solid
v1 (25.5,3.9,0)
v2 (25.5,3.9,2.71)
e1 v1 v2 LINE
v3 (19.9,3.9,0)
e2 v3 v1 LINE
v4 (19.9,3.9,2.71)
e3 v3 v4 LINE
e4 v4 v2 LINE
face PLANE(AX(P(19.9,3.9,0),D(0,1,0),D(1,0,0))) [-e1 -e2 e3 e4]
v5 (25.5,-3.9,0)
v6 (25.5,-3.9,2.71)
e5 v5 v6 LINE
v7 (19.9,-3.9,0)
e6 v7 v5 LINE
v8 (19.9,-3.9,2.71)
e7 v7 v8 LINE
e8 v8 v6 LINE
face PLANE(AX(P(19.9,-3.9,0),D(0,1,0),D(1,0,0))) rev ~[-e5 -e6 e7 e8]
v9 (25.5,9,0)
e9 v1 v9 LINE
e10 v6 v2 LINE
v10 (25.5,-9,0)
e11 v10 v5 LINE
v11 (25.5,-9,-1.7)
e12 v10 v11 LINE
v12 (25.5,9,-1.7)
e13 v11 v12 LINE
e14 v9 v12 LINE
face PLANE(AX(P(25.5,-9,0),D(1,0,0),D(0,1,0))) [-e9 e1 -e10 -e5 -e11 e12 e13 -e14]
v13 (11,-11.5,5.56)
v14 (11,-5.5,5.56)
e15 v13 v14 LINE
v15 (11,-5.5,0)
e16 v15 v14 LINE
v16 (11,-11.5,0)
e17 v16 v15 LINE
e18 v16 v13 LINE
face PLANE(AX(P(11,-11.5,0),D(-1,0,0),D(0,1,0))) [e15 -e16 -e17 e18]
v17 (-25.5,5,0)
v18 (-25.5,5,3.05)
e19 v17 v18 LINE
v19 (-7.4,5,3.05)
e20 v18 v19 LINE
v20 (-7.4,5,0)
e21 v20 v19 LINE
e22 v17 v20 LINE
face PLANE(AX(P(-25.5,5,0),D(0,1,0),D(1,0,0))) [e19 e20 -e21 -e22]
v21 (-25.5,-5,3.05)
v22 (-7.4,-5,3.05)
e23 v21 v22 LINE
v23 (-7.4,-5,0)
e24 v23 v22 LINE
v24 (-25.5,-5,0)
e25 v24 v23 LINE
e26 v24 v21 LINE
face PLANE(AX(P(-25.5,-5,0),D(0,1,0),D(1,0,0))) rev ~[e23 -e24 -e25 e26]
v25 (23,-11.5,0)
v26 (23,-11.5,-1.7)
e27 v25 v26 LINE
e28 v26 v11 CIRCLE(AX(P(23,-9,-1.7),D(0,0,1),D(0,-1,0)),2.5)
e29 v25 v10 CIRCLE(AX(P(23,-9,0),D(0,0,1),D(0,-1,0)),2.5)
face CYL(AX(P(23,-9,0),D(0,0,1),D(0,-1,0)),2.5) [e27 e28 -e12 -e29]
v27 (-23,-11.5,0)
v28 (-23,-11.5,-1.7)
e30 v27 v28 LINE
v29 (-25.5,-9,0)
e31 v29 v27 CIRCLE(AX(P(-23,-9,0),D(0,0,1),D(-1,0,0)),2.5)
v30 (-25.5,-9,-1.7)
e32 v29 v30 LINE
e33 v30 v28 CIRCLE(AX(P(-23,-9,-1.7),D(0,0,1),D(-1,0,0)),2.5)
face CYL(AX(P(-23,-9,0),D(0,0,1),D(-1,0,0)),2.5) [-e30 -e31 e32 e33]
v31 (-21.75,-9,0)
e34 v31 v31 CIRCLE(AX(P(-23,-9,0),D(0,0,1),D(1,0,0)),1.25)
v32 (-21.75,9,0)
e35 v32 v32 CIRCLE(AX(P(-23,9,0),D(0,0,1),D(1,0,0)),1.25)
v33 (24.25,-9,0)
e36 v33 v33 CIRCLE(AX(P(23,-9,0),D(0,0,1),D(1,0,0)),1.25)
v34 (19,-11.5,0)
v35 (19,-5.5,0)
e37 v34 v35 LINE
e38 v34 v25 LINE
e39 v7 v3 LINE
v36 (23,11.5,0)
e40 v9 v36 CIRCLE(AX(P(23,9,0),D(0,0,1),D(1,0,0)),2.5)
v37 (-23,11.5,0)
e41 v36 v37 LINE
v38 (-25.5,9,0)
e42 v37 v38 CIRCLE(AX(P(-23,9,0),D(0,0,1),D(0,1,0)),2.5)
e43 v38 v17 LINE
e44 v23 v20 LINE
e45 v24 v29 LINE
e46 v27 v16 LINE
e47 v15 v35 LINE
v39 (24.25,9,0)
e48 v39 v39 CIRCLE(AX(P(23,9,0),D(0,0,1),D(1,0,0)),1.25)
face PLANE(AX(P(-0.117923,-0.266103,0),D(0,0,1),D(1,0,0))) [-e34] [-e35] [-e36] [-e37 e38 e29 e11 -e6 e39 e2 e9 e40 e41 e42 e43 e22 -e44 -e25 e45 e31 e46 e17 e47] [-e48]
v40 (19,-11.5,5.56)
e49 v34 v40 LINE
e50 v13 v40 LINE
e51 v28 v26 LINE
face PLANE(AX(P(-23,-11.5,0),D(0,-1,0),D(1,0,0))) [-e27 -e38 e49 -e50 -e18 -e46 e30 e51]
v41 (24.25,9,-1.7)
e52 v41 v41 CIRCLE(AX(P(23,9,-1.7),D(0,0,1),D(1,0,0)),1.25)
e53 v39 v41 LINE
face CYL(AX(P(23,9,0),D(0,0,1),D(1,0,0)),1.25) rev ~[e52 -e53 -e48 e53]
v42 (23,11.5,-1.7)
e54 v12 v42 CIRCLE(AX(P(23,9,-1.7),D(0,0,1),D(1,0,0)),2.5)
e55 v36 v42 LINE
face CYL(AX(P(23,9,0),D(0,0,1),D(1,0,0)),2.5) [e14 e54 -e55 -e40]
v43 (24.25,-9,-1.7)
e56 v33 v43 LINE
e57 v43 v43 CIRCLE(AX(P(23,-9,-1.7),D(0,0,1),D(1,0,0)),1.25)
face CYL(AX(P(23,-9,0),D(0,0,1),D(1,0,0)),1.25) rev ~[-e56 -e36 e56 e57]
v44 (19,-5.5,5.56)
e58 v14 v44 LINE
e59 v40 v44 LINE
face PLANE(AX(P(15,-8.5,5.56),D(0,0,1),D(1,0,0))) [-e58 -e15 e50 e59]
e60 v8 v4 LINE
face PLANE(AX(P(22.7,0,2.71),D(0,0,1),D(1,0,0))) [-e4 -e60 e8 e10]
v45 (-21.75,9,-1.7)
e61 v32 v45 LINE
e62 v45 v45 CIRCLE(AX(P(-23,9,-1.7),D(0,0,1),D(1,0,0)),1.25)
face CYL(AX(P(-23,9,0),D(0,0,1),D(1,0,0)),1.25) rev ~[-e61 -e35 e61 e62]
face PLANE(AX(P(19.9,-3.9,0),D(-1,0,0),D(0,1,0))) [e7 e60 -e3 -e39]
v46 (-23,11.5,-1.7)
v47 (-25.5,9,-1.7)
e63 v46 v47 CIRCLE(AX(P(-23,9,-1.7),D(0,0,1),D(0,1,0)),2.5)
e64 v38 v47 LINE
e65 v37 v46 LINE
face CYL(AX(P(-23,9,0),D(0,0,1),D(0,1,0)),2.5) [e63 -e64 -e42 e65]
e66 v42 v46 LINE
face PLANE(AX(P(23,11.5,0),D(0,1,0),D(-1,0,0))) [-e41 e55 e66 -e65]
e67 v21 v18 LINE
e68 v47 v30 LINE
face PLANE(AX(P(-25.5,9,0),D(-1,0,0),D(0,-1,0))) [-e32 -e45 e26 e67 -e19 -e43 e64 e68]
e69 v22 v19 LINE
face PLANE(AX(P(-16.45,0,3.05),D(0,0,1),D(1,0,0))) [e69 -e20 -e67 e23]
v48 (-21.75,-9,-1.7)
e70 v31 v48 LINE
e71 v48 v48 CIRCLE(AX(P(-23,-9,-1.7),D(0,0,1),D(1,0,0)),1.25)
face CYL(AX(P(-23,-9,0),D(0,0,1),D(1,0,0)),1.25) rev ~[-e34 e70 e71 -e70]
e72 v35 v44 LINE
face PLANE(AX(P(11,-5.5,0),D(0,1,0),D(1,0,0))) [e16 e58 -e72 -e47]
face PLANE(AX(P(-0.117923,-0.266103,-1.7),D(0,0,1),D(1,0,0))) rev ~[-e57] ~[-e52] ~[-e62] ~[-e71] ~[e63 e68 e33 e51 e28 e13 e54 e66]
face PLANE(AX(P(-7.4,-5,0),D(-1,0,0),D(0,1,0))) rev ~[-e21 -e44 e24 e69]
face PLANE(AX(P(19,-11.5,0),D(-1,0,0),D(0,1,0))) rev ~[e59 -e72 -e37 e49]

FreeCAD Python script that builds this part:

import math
import FreeCAD as App
import Part
import Sketcher
from FreeCAD import Vector
Q = App.Units.Quantity


def add_polygon(sketch, points):
    """Adds a closed chain of lines whose ends are joined by coincident constraints."""
    first, n = sketch.GeometryCount, len(points)
    for a, b in zip(points, points[1:] + points[:1]):
        sketch.addGeometry(Part.LineSegment(App.Vector(*a, 0), App.Vector(*b, 0)), False)
    for i in range(n):
        sketch.addConstraint(Sketcher.Constraint("Coincident", first + i, 2, first + (i + 1) % n, 1))

doc = App.newDocument("Part")
body = doc.addObject("PartDesign::Body", "Body")

# Sketch on XY plane
sketch1 = doc.addObject("Sketcher::SketchObject", "Sketch")
body.addObject(sketch1)
sketch1.AttachmentSupport = (doc.XY_Plane, [""])
sketch1.MapMode = "FlatFace"
sketch1.addGeometry([
    Part.LineSegment(Vector(23, 11.5, 0), Vector(-23, 11.5, 0)),  # 0
    Part.ArcOfCircle(Part.Circle(Vector(-23, 9, 0), Vector(0, 0, 1), 2.5), math.radians(90), math.radians(180)),  # 1
    Part.LineSegment(Vector(-25.5, 9, 0), Vector(-25.5, -9, 0)),  # 2
    Part.ArcOfCircle(Part.Circle(Vector(-23, -9, 0), Vector(0, 0, 1), 2.5), math.radians(180), math.radians(270)),  # 3
    Part.LineSegment(Vector(-23, -11.5, 0), Vector(23, -11.5, 0)),  # 4
    Part.ArcOfCircle(Part.Circle(Vector(23, -9, 0), Vector(0, 0, 1), 2.5), math.radians(-90), math.radians(0)),  # 5
    Part.LineSegment(Vector(25.5, -9, 0), Vector(25.5, 9, 0)),  # 6
    Part.ArcOfCircle(Part.Circle(Vector(23, 9, 0), Vector(0, 0, 1), 2.5), math.radians(0), math.radians(90)),  # 7
    Part.Circle(Vector(-23, -9, 0), Vector(0, 0, 1), 1.2),  # 8
    Part.Circle(Vector(23, -9, 0), Vector(0, 0, 1), 1.2),  # 9
    Part.Circle(Vector(-23, 9, 0), Vector(0, 0, 1), 1.2),  # 10
    Part.Circle(Vector(23, 9, 0), Vector(0, 0, 1), 1.2),  # 11
], False)
sketch1.addConstraint([
    Sketcher.Constraint("Tangent", 0, 2, 1, 1),
    Sketcher.Constraint("Tangent", 1, 2, 2, 1),
    Sketcher.Constraint("Tangent", 2, 2, 3, 1),
    Sketcher.Constraint("Tangent", 3, 2, 4, 1),
    Sketcher.Constraint("Tangent", 4, 2, 5, 1),
    Sketcher.Constraint("Tangent", 5, 2, 6, 1),
    Sketcher.Constraint("Tangent", 6, 2, 7, 1),
    Sketcher.Constraint("Tangent", 7, 2, 0, 1),
    Sketcher.Constraint("Horizontal", 0),
    Sketcher.Constraint("Vertical", 2),
    Sketcher.Constraint("Horizontal", 4),
    Sketcher.Constraint("Vertical", 6),
    Sketcher.Constraint("Coincident", 8, 3, 3, 3),
    Sketcher.Constraint("Coincident", 9, 3, 5, 3),
    Sketcher.Constraint("Coincident", 10, 3, 1, 3),
    Sketcher.Constraint("Coincident", 11, 3, 7, 3),
    Sketcher.Constraint("Equal", 1, 3),
    Sketcher.Constraint("Equal", 3, 5),
    Sketcher.Constraint("Equal", 5, 7),
    Sketcher.Constraint("Equal", 8, 9),
    Sketcher.Constraint("Equal", 9, 10),
    Sketcher.Constraint("Equal", 10, 11),
    Sketcher.Constraint("Symmetric", 1, 3, 5, 3, -1, 1),
    Sketcher.Constraint("Diameter", 8, Q("2.5 mm")),
    Sketcher.Constraint("Radius", 1, Q("2.5 mm")),
    Sketcher.Constraint("DistanceX", 0, 2, 0, 1, Q("46 mm")),
    Sketcher.Constraint("DistanceY", 2, 2, 2, 1, Q("18 mm")),
])
pad1 = doc.addObject("PartDesign::Pad", "Pad")
body.addObject(pad1)
pad1.Profile = sketch1
pad1.Length = 1.7
pad1.Reversed = True

# Sketch on XY plane
sketch2 = doc.addObject("Sketcher::SketchObject", "Sketch001")
body.addObject(sketch2)
sketch2.AttachmentSupport = (doc.XY_Plane, [""])
sketch2.MapMode = "FlatFace"
add_polygon(sketch2, [(11, -6), (11, -12), (19, -12), (19, -6)])  # lines 0-3
sketch2.addConstraint([
    Sketcher.Constraint("Vertical", 0),
    Sketcher.Constraint("Horizontal", 1),
    Sketcher.Constraint("Vertical", 2),
    Sketcher.Constraint("Horizontal", 3),
    Sketcher.Constraint("DistanceX", 1, 1, 1, 2, Q("8 mm")),
    Sketcher.Constraint("DistanceY", 0, 2, 0, 1, Q("6 mm")),
    Sketcher.Constraint("DistanceX", -1, 1, 0, 2, Q("11 mm")),
    Sketcher.Constraint("DistanceY", 0, 2, -1, 1, Q("11.5 mm")),
])
pad2 = doc.addObject("PartDesign::Pad", "Pad001")
body.addObject(pad2)
pad2.Profile = sketch2
pad2.Length = 5.56

# Sketch on XY plane
sketch3 = doc.addObject("Sketcher::SketchObject", "Sketch002")
body.addObject(sketch3)
sketch3.AttachmentSupport = (doc.XY_Plane, [""])
sketch3.MapMode = "FlatFace"
add_polygon(sketch3, [(-26, 5), (-26, -5), (-7, -5), (-7, 5)])  # lines 0-3
sketch3.addConstraint([
    Sketcher.Constraint("Vertical", 0),
    Sketcher.Constraint("Horizontal", 1),
    Sketcher.Constraint("Vertical", 2),
    Sketcher.Constraint("Horizontal", 3),
    Sketcher.Constraint("DistanceY", 0, 2, 0, 1, Q("10 mm")),
    Sketcher.Constraint("DistanceX", 1, 1, 1, 2, Q("18.1 mm")),
    Sketcher.Constraint("DistanceY", 0, 2, -1, 1, Q("5 mm")),
    Sketcher.Constraint("DistanceX", 0, 2, -1, 1, Q("25.5 mm")),
])
pad3 = doc.addObject("PartDesign::Pad", "Pad002")
body.addObject(pad3)
pad3.Profile = sketch3
pad3.Length = 3.05

# Sketch on XY plane
sketch4 = doc.addObject("Sketcher::SketchObject", "Sketch003")
body.addObject(sketch4)
sketch4.AttachmentSupport = (doc.XY_Plane, [""])
sketch4.MapMode = "FlatFace"
add_polygon(sketch4, [(20, 4), (20, -4), (26, -4), (26, 4)])  # lines 0-3
sketch4.addConstraint([
    Sketcher.Constraint("Vertical", 0),
    Sketcher.Constraint("Horizontal", 1),
    Sketcher.Constraint("Vertical", 2),
    Sketcher.Constraint("Horizontal", 3),
    Sketcher.Constraint("DistanceX", 1, 1, 1, 2, Q("5.6 mm")),
    Sketcher.Constraint("DistanceY", 0, 2, 0, 1, Q("7.8 mm")),
    Sketcher.Constraint("DistanceX", -1, 1, 0, 2, Q("19.9 mm")),
    Sketcher.Constraint("DistanceY", 0, 2, -1, 1, Q("3.9 mm")),
])
pad4 = doc.addObject("PartDesign::Pad", "Pad003")
body.addObject(pad4)
pad4.Profile = sketch4
pad4.Length = 2.71

doc.recompute()
